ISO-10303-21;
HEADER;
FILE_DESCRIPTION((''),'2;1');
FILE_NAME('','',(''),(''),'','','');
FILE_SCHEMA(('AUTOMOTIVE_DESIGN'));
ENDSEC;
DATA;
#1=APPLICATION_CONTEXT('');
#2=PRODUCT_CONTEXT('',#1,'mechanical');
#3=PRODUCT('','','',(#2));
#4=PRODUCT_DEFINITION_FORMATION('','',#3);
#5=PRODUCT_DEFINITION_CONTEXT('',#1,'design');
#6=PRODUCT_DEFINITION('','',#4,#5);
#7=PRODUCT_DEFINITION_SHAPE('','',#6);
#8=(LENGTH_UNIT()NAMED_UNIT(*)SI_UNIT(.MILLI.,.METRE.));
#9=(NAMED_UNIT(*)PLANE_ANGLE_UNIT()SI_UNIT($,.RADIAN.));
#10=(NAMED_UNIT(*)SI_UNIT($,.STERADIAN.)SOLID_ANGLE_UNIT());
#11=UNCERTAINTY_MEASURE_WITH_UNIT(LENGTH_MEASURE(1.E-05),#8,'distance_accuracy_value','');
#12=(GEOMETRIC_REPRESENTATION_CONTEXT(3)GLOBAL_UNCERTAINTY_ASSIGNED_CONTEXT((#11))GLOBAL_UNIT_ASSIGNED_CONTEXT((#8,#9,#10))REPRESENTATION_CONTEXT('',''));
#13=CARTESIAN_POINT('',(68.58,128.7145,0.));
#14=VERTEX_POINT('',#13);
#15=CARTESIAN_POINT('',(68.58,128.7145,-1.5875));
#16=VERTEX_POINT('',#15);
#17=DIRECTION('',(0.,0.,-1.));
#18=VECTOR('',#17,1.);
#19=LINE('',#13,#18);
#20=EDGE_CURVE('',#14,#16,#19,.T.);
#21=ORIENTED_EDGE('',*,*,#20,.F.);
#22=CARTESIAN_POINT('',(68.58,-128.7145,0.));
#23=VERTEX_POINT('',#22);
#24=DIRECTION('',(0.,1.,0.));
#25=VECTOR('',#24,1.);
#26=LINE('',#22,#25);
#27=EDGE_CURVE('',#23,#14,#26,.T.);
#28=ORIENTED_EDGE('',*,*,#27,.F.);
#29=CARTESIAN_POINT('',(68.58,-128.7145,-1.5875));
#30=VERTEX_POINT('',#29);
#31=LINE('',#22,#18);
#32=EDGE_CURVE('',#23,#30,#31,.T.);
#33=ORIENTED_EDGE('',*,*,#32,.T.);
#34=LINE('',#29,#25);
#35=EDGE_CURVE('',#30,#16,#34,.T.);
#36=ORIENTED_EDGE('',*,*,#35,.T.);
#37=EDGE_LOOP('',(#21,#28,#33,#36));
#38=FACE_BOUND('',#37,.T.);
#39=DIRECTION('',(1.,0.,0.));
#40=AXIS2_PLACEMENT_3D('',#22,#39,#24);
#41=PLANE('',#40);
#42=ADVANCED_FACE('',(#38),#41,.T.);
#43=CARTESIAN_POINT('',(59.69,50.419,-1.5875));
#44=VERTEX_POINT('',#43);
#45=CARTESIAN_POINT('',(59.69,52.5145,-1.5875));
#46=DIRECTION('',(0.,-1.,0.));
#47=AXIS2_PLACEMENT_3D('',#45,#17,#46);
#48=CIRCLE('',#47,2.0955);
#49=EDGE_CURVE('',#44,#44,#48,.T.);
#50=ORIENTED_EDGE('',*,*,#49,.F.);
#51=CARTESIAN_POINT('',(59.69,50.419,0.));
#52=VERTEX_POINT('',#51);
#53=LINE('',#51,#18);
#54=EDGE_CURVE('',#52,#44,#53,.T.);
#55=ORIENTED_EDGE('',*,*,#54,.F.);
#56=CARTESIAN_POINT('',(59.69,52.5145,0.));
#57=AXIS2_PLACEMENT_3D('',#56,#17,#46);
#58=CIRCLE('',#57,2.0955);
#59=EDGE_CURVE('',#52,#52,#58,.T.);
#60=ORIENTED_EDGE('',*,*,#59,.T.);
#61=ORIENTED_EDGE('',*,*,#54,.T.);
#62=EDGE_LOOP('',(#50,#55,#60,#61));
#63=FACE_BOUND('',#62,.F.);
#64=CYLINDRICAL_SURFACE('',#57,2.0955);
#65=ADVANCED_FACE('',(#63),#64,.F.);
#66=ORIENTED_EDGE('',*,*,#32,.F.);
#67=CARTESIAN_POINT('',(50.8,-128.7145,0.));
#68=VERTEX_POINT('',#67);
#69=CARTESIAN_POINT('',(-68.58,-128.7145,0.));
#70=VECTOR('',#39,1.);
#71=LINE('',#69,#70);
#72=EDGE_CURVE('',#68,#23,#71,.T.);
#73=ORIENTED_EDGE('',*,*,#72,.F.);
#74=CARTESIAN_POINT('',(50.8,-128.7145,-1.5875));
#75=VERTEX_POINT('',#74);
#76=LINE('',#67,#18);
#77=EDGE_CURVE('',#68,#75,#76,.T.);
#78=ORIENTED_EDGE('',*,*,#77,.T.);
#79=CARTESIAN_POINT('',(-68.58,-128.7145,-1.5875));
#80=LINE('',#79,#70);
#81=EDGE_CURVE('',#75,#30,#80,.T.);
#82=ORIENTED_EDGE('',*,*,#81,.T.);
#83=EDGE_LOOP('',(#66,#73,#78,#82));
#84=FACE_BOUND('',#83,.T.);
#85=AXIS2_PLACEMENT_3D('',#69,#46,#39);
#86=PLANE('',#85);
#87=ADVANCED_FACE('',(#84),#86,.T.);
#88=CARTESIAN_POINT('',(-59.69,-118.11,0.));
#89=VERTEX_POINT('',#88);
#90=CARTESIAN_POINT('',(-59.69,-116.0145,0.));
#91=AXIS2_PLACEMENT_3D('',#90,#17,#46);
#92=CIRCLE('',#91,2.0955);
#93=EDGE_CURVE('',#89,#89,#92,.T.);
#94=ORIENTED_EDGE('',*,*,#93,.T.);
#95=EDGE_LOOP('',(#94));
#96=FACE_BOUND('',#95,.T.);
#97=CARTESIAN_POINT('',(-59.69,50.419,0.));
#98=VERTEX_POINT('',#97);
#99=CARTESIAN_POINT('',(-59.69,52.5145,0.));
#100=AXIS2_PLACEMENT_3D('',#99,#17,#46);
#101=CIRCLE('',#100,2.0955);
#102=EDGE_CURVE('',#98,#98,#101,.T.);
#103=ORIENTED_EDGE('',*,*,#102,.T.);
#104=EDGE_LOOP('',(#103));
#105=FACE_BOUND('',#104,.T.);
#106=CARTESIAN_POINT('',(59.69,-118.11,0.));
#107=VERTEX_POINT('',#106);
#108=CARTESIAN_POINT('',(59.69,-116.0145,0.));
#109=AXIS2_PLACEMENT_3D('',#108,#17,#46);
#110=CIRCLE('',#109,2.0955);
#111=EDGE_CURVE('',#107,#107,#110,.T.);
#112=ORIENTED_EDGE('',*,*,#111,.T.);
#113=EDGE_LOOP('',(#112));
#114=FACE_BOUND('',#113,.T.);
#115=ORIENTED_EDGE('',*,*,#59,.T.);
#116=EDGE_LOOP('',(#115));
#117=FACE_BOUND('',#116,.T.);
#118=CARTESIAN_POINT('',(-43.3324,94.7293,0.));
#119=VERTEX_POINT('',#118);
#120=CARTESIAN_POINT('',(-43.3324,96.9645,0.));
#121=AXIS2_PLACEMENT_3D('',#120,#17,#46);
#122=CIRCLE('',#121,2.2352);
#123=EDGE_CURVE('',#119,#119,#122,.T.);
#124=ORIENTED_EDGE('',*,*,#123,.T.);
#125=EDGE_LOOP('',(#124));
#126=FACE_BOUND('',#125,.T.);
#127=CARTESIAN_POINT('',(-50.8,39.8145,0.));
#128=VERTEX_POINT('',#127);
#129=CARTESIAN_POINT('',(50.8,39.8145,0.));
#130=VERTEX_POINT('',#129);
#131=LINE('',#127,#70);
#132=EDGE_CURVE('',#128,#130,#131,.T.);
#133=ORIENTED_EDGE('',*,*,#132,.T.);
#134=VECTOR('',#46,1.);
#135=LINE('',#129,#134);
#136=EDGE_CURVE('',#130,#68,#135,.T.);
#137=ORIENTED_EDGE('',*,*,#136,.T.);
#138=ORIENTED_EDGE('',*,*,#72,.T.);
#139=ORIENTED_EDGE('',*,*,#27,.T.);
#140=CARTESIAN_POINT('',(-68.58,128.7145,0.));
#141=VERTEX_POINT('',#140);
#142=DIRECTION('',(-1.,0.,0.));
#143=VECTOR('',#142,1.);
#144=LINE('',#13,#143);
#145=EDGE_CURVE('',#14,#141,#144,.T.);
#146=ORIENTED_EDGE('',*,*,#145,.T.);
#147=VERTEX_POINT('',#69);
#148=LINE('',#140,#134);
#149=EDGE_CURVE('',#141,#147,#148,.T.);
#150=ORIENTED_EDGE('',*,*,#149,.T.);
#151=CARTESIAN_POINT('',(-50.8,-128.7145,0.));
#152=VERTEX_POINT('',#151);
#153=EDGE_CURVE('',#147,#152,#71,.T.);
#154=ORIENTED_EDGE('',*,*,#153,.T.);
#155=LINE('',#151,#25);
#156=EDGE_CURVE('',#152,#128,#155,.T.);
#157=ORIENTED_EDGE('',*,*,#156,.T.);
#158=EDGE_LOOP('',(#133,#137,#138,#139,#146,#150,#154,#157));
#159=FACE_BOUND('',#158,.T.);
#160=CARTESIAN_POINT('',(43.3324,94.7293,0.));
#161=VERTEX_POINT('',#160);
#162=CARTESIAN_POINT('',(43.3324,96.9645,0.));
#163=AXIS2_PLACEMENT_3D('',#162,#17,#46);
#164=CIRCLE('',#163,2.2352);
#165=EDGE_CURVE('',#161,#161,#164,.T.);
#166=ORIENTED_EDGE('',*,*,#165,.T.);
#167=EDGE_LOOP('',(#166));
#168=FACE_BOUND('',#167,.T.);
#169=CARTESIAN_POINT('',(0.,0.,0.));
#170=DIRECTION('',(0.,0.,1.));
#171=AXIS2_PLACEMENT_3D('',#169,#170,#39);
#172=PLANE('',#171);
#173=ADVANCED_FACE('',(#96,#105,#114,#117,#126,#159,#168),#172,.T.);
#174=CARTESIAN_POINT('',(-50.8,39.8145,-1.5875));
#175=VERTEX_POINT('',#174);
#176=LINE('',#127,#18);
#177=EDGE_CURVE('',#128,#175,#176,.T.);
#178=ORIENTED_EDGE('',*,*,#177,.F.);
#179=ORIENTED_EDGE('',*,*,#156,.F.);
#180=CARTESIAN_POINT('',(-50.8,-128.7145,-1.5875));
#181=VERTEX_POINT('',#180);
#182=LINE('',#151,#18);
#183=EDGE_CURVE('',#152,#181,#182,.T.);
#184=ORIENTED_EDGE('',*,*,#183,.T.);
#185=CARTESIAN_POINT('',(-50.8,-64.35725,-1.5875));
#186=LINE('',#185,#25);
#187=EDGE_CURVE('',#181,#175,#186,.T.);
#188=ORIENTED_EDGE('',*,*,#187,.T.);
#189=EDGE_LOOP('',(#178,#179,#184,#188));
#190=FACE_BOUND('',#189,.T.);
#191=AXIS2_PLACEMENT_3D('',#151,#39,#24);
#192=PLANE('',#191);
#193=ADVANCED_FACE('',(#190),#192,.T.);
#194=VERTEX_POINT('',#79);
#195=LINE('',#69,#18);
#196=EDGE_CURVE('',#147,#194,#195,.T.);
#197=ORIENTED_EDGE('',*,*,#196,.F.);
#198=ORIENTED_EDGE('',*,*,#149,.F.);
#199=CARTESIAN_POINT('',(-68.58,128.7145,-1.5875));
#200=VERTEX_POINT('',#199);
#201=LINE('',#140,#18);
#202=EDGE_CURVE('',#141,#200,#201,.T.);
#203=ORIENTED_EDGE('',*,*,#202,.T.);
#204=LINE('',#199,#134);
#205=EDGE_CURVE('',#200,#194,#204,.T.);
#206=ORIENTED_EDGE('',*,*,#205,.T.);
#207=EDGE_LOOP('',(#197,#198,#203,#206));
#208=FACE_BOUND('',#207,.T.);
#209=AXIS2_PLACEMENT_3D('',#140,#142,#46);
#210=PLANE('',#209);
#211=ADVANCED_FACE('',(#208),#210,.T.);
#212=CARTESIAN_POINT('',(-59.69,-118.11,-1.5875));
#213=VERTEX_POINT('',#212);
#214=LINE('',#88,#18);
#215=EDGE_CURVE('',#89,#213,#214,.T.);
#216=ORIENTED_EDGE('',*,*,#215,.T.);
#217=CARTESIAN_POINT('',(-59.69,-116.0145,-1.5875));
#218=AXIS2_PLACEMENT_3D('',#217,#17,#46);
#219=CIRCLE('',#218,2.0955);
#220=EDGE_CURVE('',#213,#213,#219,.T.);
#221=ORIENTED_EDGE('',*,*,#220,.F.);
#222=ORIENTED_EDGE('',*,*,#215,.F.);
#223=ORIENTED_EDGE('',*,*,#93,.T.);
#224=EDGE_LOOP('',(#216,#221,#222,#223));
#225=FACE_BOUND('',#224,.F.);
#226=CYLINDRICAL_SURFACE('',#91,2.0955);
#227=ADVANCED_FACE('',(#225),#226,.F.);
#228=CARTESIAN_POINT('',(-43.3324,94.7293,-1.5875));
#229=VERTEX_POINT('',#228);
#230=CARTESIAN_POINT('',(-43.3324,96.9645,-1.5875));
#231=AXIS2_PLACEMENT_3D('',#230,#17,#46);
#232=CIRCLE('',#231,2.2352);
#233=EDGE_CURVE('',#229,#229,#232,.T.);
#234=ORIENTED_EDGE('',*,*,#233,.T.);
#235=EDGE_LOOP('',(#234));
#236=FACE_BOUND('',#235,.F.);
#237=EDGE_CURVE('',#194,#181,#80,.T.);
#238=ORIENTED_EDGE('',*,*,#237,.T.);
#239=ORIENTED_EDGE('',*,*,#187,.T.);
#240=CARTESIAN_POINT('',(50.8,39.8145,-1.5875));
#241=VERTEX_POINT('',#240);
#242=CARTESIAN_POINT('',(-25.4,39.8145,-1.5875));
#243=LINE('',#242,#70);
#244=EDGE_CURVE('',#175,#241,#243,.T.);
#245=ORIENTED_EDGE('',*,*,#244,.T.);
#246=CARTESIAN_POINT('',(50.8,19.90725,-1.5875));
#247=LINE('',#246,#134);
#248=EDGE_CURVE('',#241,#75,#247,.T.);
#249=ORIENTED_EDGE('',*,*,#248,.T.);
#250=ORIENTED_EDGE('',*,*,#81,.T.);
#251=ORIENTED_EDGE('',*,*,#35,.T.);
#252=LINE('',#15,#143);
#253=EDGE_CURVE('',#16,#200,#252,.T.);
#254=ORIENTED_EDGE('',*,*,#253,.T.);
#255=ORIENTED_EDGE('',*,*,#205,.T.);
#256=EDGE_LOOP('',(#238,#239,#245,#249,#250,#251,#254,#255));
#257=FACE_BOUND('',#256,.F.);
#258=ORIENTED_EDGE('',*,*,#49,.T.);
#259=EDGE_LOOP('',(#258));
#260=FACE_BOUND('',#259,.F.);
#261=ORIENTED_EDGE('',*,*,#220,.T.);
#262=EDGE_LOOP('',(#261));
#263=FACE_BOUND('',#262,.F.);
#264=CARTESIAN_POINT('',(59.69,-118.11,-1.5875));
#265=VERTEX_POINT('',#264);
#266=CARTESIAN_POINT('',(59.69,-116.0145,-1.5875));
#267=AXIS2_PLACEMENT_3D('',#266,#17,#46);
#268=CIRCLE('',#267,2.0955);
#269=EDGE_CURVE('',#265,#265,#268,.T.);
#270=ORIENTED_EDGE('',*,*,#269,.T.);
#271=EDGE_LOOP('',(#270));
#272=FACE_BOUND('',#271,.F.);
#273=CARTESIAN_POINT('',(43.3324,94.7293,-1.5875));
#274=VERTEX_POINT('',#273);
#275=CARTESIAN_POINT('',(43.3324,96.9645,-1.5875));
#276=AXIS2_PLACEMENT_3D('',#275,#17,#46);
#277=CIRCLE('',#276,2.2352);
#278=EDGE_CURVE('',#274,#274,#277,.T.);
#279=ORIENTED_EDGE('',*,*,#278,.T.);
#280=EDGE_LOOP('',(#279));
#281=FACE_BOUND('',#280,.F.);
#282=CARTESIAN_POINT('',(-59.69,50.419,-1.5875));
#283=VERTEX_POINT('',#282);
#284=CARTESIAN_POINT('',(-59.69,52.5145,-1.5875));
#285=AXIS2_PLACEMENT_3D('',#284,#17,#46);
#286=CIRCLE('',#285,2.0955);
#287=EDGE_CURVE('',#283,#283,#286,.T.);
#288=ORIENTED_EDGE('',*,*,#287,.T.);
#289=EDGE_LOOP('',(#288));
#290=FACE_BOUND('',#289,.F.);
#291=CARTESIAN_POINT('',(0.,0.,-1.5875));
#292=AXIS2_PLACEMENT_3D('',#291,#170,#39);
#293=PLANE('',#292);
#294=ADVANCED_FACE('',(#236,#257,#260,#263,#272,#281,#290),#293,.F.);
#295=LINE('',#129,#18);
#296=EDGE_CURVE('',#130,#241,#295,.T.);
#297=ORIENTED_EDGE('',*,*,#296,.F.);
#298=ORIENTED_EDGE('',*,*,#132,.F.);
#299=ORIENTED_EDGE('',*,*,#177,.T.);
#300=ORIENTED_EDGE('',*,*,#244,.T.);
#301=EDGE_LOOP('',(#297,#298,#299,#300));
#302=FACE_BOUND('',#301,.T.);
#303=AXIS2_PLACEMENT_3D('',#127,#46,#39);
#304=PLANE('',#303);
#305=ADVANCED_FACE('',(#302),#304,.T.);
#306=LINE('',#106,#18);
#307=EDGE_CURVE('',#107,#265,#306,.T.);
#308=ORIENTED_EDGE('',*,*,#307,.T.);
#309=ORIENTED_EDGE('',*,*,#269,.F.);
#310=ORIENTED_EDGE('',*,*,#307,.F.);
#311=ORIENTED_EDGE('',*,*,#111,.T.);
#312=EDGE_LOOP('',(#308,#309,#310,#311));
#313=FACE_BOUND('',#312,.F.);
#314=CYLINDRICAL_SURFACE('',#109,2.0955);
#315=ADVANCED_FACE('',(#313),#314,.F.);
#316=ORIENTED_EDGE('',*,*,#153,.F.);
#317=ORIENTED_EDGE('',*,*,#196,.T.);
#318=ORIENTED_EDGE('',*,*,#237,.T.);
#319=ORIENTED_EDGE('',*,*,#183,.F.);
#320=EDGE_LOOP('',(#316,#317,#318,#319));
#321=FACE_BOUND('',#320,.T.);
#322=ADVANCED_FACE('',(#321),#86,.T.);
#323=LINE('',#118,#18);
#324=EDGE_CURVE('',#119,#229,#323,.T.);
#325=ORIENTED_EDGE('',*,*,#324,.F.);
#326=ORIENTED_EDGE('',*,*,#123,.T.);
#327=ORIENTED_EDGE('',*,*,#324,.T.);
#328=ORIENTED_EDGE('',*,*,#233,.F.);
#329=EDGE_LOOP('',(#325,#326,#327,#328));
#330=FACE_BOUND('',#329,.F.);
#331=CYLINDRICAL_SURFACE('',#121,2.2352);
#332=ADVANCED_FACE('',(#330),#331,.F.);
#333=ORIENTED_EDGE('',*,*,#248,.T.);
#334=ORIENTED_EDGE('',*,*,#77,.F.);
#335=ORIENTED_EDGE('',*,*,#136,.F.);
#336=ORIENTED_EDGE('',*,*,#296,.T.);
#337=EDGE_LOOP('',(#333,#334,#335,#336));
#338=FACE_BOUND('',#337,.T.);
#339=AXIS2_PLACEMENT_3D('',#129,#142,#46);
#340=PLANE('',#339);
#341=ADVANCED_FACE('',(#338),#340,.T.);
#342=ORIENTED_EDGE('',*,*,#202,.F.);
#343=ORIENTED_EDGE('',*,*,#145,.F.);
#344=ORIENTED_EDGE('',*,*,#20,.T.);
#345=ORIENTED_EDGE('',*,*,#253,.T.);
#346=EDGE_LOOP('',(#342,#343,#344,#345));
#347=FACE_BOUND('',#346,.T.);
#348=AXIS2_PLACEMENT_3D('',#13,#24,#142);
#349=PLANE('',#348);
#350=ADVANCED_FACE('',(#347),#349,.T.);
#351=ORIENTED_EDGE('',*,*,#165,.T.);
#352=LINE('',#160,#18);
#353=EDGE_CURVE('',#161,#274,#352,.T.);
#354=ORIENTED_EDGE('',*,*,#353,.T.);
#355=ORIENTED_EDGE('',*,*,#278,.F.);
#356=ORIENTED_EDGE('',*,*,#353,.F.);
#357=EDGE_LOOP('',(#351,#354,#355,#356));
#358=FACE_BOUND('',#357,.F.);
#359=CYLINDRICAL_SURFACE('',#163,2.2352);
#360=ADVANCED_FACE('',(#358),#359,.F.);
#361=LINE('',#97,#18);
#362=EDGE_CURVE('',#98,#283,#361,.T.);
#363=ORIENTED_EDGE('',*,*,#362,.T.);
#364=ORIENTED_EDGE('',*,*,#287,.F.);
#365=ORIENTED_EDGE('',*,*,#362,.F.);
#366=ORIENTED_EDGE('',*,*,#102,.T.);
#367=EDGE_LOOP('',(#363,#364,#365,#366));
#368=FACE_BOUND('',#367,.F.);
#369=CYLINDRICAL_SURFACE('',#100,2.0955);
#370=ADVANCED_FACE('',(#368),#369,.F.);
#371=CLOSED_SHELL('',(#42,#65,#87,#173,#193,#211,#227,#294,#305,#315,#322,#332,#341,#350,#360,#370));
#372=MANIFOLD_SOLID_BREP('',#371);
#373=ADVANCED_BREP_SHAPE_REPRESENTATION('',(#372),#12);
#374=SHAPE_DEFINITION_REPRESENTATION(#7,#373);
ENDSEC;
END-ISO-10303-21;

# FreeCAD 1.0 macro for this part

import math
import FreeCAD as App
import Part
import Sketcher
Q = App.Units.Quantity

doc = App.newDocument("Part")
body = doc.addObject("PartDesign::Body", "Body")

# Sketch on XY plane
sketch1 = body.newObject("Sketcher::SketchObject", "Sketch")
sketch1.AttachmentSupport = (doc.getObject("XY_Plane"), [""])
sketch1.MapMode = "FlatFace"
sketch1.addGeometry(Part.LineSegment(App.Vector(-69, 129, 0), App.Vector(-69, -129, 0)), False)
sketch1.addGeometry(Part.LineSegment(App.Vector(-69, -129, 0), App.Vector(69, -129, 0)), False)
sketch1.addGeometry(Part.LineSegment(App.Vector(69, -129, 0), App.Vector(69, 129, 0)), False)
sketch1.addGeometry(Part.LineSegment(App.Vector(69, 129, 0), App.Vector(-69, 129, 0)), False)
sketch1.addConstraint(Sketcher.Constraint("Coincident", 0, 2, 1, 1))
sketch1.addConstraint(Sketcher.Constraint("Coincident", 1, 2, 2, 1))
sketch1.addConstraint(Sketcher.Constraint("Coincident", 2, 2, 3, 1))
sketch1.addConstraint(Sketcher.Constraint("Coincident", 3, 2, 0, 1))
sketch1.addConstraint(Sketcher.Constraint("Vertical", 0))
sketch1.addConstraint(Sketcher.Constraint("Horizontal", 1))
sketch1.addConstraint(Sketcher.Constraint("Vertical", 2))
sketch1.addConstraint(Sketcher.Constraint("Horizontal", 3))
sketch1.addConstraint(Sketcher.Constraint("Symmetric", 0, 2, 2, 2, -1, 1))
sketch1.addConstraint(Sketcher.Constraint("DistanceX", 1, 1, 1, 2, Q("5.4 in")))
sketch1.addConstraint(Sketcher.Constraint("DistanceY", 0, 2, 0, 1, Q("10.135 in")))
pad1 = body.newObject("PartDesign::Pad", "Pad")
pad1.Profile = sketch1
pad1.Length = Q("0.0625 in")
pad1.Reversed = True

# Sketch on XY plane
sketch2 = body.newObject("Sketcher::SketchObject", "Sketch001")
sketch2.AttachmentSupport = (doc.getObject("XY_Plane"), [""])
sketch2.MapMode = "FlatFace"
sketch2.addGeometry(Part.Circle(App.Vector(-59.7, 52.5, 0), App.Vector(0, 0, 1), 2.1), False)
sketch2.addGeometry(Part.Circle(App.Vector(59.7, 52.5, 0), App.Vector(0, 0, 1), 2.1), False)
sketch2.addGeometry(Part.Circle(App.Vector(-59.7, -116, 0), App.Vector(0, 0, 1), 2.1), False)
sketch2.addGeometry(Part.Circle(App.Vector(59.7, -116, 0), App.Vector(0, 0, 1), 2.1), False)
sketch2.addConstraint(Sketcher.Constraint("Equal", 0, 1))
sketch2.addConstraint(Sketcher.Constraint("Equal", 1, 2))
sketch2.addConstraint(Sketcher.Constraint("Equal", 2, 3))
sketch2.addConstraint(Sketcher.Constraint("Symmetric", 0, 3, 1, 3, -2))
sketch2.addConstraint(Sketcher.Constraint("Symmetric", 2, 3, 3, 3, -2))
sketch2.addConstraint(Sketcher.Constraint("Vertical", 0, 3, 2, 3))
sketch2.addConstraint(Sketcher.Constraint("Diameter", 0, Q("0.165 in")))
sketch2.addConstraint(Sketcher.Constraint("DistanceX", 0, 3, 1, 3, Q("4.7 in")))
sketch2.addConstraint(Sketcher.Constraint("DistanceY", 2, 3, 0, 3, Q("6.635 in")))
sketch2.addConstraint(Sketcher.Constraint("DistanceY", -1, 1, 0, 3, Q("2.0675 in")))
doc.recompute()
hole = body.newObject("PartDesign::Hole", "Hole")
hole.Profile = sketch2
hole.ThreadType = "None"
hole.Diameter = Q("0.165 in")
hole.DepthType = "ThroughAll"

# Sketch on XY plane
sketch3 = body.newObject("Sketcher::SketchObject", "Sketch002")
sketch3.AttachmentSupport = (doc.getObject("XY_Plane"), [""])
sketch3.MapMode = "FlatFace"
sketch3.addGeometry(Part.ArcOfCircle(Part.Circle(App.Vector(-31.8, -49.1, 0), App.Vector(0, 0, 1), 3.4), math.radians(0), math.radians(180)), False)
sketch3.addGeometry(Part.LineSegment(App.Vector(-35.2, -49.1, 0), App.Vector(-35.2, -99.9, 0)), False)
sketch3.addGeometry(Part.ArcOfCircle(Part.Circle(App.Vector(-31.8, -99.9, 0), App.Vector(0, 0, 1), 3.4), math.radians(180), math.radians(360)), False)
sketch3.addGeometry(Part.LineSegment(App.Vector(-28.3, -99.9, 0), App.Vector(-28.3, -49.1, 0)), False)
sketch3.addGeometry(Part.ArcOfCircle(Part.Circle(App.Vector(31.8, -49.1, 0), App.Vector(0, 0, 1), 3.4), math.radians(0), math.radians(180)), False)
sketch3.addGeometry(Part.LineSegment(App.Vector(28.3, -49.1, 0), App.Vector(28.3, -99.9, 0)), False)
sketch3.addGeometry(Part.ArcOfCircle(Part.Circle(App.Vector(31.8, -99.9, 0), App.Vector(0, 0, 1), 3.4), math.radians(180), math.radians(360)), False)
sketch3.addGeometry(Part.LineSegment(App.Vector(35.2, -99.9, 0), App.Vector(35.2, -49.1, 0)), False)
sketch3.addConstraint(Sketcher.Constraint("Tangent", 0, 2, 1, 1))
sketch3.addConstraint(Sketcher.Constraint("Tangent", 1, 2, 2, 1))
sketch3.addConstraint(Sketcher.Constraint("Tangent", 2, 2, 3, 1))
sketch3.addConstraint(Sketcher.Constraint("Tangent", 3, 2, 0, 1))
sketch3.addConstraint(Sketcher.Constraint("Tangent", 4, 2, 5, 1))
sketch3.addConstraint(Sketcher.Constraint("Tangent", 5, 2, 6, 1))
sketch3.addConstraint(Sketcher.Constraint("Tangent", 6, 2, 7, 1))
sketch3.addConstraint(Sketcher.Constraint("Tangent", 7, 2, 4, 1))
sketch3.addConstraint(Sketcher.Constraint("Vertical", 1))
sketch3.addConstraint(Sketcher.Constraint("Vertical", 3))
sketch3.addConstraint(Sketcher.Constraint("Vertical", 5))
sketch3.addConstraint(Sketcher.Constraint("Vertical", 7))
sketch3.addConstraint(Sketcher.Constraint("Equal", 2, 4))
sketch3.addConstraint(Sketcher.Constraint("Symmetric", 0, 3, 4, 3, -2))
sketch3.addConstraint(Sketcher.Constraint("Horizontal", 2, 3, 6, 3))
sketch3.addConstraint(Sketcher.Constraint("DistanceY", 1, 2, 1, 1, Q("2 in")))
sketch3.addConstraint(Sketcher.Constraint("Radius", 0, Q("0.135 in")))
sketch3.addConstraint(Sketcher.Constraint("DistanceX", 0, 3, 4, 3, Q("2.5 in")))
sketch3.addConstraint(Sketcher.Constraint("DistanceY", 0, 3, -1, 1, Q("1.9325 in")))
pocket1 = body.newObject("PartDesign::Pocket", "Pocket")
pocket1.Profile = sketch3
pocket1.Length = Q("0.125 in")

# Sketch on XY plane
sketch4 = body.newObject("Sketcher::SketchObject", "Sketch003")
sketch4.AttachmentSupport = (doc.getObject("XY_Plane"), [""])
sketch4.MapMode = "FlatFace"
sketch4.addGeometry(Part.Circle(App.Vector(-43.3, 97, 0), App.Vector(0, 0, 1), 2.2), False)
sketch4.addGeometry(Part.Circle(App.Vector(43.3, 97, 0), App.Vector(0, 0, 1), 2.2), False)
sketch4.addConstraint(Sketcher.Constraint("Equal", 0, 1))
sketch4.addConstraint(Sketcher.Constraint("Symmetric", 0, 3, 1, 3, -2))
sketch4.addConstraint(Sketcher.Constraint("Diameter", 0, Q("0.176 in")))
sketch4.addConstraint(Sketcher.Constraint("DistanceX", 0, 3, -1, 1, Q("1.706 in")))
sketch4.addConstraint(Sketcher.Constraint("DistanceY", -1, 1, 0, 3, Q("3.8175 in")))
doc.recompute()
hole2 = body.newObject("PartDesign::Hole", "Hole001")
hole2.Profile = sketch4
hole2.ThreadType = "None"
hole2.Diameter = Q("0.176 in")
hole2.DepthType = "ThroughAll"

# Sketch on XY plane
sketch5 = body.newObject("Sketcher::SketchObject", "Sketch004")
sketch5.AttachmentSupport = (doc.getObject("XY_Plane"), [""])
sketch5.MapMode = "FlatFace"
sketch5.addGeometry(Part.LineSegment(App.Vector(-51, 40, 0), App.Vector(-51, -129, 0)), False)
sketch5.addGeometry(Part.LineSegment(App.Vector(-51, -129, 0), App.Vector(51, -129, 0)), False)
sketch5.addGeometry(Part.LineSegment(App.Vector(51, -129, 0), App.Vector(51, 40, 0)), False)
sketch5.addGeometry(Part.LineSegment(App.Vector(51, 40, 0), App.Vector(-51, 40, 0)), False)
sketch5.addConstraint(Sketcher.Constraint("Coincident", 0, 2, 1, 1))
sketch5.addConstraint(Sketcher.Constraint("Coincident", 1, 2, 2, 1))
sketch5.addConstraint(Sketcher.Constraint("Coincident", 2, 2, 3, 1))
sketch5.addConstraint(Sketcher.Constraint("Coincident", 3, 2, 0, 1))
sketch5.addConstraint(Sketcher.Constraint("Vertical", 0))
sketch5.addConstraint(Sketcher.Constraint("Horizontal", 1))
sketch5.addConstraint(Sketcher.Constraint("Vertical", 2))
sketch5.addConstraint(Sketcher.Constraint("Horizontal", 3))
sketch5.addConstraint(Sketcher.Constraint("DistanceX", 1, 1, 1, 2, Q("4 in")))
sketch5.addConstraint(Sketcher.Constraint("DistanceX", 0, 2, -1, 1, Q("2 in")))
sketch5.addConstraint(Sketcher.Constraint("DistanceY", 0, 2, 0, 1, Q("6.635 in")))
sketch5.addConstraint(Sketcher.Constraint("DistanceY", 0, 2, -1, 1, Q("5.0675 in")))
pocket2 = body.newObject("PartDesign::Pocket", "Pocket001")
pocket2.Profile = sketch5
pocket2.Length = Q("0.125 in")

doc.recompute()
